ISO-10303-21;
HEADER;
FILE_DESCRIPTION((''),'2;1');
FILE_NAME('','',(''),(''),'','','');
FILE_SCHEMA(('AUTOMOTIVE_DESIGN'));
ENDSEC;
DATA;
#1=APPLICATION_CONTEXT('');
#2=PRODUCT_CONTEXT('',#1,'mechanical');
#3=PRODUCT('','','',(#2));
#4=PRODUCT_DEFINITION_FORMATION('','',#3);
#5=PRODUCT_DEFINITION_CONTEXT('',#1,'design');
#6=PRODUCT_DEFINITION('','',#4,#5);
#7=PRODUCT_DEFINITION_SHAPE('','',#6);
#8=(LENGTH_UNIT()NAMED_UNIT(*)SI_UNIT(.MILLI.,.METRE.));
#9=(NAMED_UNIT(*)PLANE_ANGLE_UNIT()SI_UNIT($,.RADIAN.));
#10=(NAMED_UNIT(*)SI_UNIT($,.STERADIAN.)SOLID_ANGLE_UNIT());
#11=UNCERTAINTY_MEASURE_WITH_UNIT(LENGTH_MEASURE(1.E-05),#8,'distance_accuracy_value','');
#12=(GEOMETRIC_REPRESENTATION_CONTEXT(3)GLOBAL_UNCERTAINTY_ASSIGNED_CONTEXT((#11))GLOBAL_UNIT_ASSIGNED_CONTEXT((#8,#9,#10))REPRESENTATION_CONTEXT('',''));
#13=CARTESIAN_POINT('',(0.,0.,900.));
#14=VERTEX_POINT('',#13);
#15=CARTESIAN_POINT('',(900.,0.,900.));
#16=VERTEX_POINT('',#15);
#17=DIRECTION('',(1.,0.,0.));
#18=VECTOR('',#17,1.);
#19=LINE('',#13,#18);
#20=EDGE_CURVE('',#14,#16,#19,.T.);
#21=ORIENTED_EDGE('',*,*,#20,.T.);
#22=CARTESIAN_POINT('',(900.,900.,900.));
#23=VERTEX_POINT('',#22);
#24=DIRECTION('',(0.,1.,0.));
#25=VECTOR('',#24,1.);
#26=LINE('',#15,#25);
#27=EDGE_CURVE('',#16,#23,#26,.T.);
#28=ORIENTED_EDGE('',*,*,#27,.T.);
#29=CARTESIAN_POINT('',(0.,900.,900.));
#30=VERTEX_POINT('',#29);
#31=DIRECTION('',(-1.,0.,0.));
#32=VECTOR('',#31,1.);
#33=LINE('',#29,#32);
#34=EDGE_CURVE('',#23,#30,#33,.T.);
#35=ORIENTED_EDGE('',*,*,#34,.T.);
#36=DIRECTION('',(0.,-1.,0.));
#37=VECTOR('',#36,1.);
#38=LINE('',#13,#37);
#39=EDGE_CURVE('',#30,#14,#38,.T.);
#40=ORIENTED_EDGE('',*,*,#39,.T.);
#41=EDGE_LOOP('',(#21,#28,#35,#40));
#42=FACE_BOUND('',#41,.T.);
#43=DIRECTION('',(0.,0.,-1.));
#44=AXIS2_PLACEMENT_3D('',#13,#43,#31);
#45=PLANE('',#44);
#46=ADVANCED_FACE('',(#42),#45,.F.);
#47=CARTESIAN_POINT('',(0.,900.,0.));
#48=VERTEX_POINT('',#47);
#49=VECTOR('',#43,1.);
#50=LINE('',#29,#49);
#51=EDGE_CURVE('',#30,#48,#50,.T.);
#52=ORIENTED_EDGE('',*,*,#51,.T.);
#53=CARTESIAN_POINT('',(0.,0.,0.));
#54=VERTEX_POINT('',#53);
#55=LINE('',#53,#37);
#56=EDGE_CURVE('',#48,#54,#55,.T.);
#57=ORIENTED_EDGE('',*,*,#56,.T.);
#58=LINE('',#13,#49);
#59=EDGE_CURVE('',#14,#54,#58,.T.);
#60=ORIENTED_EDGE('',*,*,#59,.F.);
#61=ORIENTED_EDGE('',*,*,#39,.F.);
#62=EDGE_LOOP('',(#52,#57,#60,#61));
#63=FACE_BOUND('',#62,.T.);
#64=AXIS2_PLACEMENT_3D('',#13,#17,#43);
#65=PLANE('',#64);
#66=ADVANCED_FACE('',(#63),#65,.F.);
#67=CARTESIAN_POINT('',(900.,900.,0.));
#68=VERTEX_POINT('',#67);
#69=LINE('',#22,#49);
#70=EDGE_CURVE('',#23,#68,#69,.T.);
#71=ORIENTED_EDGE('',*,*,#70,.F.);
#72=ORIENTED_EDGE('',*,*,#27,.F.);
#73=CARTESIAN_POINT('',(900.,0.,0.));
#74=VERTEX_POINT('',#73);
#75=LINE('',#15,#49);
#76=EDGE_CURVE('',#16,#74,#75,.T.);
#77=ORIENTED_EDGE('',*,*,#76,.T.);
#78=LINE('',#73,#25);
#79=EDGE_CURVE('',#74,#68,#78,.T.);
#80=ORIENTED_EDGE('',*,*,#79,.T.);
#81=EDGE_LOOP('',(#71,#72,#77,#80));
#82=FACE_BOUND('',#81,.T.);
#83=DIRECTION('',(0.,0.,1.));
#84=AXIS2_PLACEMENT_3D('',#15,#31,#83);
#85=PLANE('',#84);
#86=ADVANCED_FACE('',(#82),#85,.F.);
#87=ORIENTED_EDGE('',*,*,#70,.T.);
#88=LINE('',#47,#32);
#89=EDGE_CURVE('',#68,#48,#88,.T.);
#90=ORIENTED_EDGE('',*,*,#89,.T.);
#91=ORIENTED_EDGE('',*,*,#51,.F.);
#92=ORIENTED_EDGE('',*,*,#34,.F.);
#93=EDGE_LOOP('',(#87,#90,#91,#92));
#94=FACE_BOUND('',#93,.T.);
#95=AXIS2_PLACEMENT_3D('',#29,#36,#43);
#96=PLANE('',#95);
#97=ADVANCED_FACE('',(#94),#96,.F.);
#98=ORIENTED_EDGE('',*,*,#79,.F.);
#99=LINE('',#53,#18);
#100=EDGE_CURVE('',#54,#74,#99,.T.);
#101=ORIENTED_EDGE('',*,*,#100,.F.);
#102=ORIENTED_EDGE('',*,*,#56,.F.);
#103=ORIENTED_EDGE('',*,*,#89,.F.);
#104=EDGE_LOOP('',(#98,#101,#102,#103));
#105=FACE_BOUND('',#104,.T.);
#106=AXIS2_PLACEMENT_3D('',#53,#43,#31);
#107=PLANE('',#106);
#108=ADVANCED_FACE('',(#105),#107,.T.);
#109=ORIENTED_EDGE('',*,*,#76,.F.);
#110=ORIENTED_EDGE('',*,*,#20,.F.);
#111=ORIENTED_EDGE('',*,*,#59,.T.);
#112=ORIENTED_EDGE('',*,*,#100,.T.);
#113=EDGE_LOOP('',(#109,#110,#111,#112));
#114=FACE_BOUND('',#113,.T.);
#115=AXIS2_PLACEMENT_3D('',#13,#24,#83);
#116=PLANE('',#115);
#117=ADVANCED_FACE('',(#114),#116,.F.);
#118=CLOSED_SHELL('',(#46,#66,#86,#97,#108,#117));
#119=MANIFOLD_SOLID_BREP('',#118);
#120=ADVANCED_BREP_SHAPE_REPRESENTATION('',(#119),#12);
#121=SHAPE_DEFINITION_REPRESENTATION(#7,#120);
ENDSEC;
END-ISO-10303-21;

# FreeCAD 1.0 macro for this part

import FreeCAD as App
import Part
import Sketcher

V = App.Vector


def add_polygon(sketch, points):
    """Adds a closed chain of lines whose ends are joined by coincident constraints."""
    first, n = sketch.GeometryCount, len(points)
    for a, b in zip(points, points[1:] + points[:1]):
        sketch.addGeometry(Part.LineSegment(App.Vector(*a, 0), App.Vector(*b, 0)), False)
    for i in range(n):
        sketch.addConstraint(Sketcher.Constraint("Coincident", first + i, 2, first + (i + 1) % n, 1))

doc = App.newDocument("Part")
body = doc.addObject("PartDesign::Body", "Body")

# Sketch on XY plane
sketch1 = body.newObject("Sketcher::SketchObject", "Sketch")
sketch1.AttachmentSupport = (doc.getObject("XY_Plane"), [""])
sketch1.MapMode = "FlatFace"
add_polygon(sketch1, [(0, 900), (0, 0), (900, 0), (900, 900)])  # lines 0-3
sketch1.addConstraint([
    Sketcher.Constraint("Vertical", 0),
    Sketcher.Constraint("Horizontal", 1),
    Sketcher.Constraint("Vertical", 2),
    Sketcher.Constraint("Horizontal", 3),
    Sketcher.Constraint("Coincident", 0, 2, -1, 1),
    Sketcher.Constraint("Equal", 3, 0),
    Sketcher.Constraint("DistanceX", 1, 1, 1, 2, 900.0),
])
pad1 = body.newObject("PartDesign::Pad", "Pad")
pad1.Profile = sketch1
pad1.Length = 900

doc.recompute()
